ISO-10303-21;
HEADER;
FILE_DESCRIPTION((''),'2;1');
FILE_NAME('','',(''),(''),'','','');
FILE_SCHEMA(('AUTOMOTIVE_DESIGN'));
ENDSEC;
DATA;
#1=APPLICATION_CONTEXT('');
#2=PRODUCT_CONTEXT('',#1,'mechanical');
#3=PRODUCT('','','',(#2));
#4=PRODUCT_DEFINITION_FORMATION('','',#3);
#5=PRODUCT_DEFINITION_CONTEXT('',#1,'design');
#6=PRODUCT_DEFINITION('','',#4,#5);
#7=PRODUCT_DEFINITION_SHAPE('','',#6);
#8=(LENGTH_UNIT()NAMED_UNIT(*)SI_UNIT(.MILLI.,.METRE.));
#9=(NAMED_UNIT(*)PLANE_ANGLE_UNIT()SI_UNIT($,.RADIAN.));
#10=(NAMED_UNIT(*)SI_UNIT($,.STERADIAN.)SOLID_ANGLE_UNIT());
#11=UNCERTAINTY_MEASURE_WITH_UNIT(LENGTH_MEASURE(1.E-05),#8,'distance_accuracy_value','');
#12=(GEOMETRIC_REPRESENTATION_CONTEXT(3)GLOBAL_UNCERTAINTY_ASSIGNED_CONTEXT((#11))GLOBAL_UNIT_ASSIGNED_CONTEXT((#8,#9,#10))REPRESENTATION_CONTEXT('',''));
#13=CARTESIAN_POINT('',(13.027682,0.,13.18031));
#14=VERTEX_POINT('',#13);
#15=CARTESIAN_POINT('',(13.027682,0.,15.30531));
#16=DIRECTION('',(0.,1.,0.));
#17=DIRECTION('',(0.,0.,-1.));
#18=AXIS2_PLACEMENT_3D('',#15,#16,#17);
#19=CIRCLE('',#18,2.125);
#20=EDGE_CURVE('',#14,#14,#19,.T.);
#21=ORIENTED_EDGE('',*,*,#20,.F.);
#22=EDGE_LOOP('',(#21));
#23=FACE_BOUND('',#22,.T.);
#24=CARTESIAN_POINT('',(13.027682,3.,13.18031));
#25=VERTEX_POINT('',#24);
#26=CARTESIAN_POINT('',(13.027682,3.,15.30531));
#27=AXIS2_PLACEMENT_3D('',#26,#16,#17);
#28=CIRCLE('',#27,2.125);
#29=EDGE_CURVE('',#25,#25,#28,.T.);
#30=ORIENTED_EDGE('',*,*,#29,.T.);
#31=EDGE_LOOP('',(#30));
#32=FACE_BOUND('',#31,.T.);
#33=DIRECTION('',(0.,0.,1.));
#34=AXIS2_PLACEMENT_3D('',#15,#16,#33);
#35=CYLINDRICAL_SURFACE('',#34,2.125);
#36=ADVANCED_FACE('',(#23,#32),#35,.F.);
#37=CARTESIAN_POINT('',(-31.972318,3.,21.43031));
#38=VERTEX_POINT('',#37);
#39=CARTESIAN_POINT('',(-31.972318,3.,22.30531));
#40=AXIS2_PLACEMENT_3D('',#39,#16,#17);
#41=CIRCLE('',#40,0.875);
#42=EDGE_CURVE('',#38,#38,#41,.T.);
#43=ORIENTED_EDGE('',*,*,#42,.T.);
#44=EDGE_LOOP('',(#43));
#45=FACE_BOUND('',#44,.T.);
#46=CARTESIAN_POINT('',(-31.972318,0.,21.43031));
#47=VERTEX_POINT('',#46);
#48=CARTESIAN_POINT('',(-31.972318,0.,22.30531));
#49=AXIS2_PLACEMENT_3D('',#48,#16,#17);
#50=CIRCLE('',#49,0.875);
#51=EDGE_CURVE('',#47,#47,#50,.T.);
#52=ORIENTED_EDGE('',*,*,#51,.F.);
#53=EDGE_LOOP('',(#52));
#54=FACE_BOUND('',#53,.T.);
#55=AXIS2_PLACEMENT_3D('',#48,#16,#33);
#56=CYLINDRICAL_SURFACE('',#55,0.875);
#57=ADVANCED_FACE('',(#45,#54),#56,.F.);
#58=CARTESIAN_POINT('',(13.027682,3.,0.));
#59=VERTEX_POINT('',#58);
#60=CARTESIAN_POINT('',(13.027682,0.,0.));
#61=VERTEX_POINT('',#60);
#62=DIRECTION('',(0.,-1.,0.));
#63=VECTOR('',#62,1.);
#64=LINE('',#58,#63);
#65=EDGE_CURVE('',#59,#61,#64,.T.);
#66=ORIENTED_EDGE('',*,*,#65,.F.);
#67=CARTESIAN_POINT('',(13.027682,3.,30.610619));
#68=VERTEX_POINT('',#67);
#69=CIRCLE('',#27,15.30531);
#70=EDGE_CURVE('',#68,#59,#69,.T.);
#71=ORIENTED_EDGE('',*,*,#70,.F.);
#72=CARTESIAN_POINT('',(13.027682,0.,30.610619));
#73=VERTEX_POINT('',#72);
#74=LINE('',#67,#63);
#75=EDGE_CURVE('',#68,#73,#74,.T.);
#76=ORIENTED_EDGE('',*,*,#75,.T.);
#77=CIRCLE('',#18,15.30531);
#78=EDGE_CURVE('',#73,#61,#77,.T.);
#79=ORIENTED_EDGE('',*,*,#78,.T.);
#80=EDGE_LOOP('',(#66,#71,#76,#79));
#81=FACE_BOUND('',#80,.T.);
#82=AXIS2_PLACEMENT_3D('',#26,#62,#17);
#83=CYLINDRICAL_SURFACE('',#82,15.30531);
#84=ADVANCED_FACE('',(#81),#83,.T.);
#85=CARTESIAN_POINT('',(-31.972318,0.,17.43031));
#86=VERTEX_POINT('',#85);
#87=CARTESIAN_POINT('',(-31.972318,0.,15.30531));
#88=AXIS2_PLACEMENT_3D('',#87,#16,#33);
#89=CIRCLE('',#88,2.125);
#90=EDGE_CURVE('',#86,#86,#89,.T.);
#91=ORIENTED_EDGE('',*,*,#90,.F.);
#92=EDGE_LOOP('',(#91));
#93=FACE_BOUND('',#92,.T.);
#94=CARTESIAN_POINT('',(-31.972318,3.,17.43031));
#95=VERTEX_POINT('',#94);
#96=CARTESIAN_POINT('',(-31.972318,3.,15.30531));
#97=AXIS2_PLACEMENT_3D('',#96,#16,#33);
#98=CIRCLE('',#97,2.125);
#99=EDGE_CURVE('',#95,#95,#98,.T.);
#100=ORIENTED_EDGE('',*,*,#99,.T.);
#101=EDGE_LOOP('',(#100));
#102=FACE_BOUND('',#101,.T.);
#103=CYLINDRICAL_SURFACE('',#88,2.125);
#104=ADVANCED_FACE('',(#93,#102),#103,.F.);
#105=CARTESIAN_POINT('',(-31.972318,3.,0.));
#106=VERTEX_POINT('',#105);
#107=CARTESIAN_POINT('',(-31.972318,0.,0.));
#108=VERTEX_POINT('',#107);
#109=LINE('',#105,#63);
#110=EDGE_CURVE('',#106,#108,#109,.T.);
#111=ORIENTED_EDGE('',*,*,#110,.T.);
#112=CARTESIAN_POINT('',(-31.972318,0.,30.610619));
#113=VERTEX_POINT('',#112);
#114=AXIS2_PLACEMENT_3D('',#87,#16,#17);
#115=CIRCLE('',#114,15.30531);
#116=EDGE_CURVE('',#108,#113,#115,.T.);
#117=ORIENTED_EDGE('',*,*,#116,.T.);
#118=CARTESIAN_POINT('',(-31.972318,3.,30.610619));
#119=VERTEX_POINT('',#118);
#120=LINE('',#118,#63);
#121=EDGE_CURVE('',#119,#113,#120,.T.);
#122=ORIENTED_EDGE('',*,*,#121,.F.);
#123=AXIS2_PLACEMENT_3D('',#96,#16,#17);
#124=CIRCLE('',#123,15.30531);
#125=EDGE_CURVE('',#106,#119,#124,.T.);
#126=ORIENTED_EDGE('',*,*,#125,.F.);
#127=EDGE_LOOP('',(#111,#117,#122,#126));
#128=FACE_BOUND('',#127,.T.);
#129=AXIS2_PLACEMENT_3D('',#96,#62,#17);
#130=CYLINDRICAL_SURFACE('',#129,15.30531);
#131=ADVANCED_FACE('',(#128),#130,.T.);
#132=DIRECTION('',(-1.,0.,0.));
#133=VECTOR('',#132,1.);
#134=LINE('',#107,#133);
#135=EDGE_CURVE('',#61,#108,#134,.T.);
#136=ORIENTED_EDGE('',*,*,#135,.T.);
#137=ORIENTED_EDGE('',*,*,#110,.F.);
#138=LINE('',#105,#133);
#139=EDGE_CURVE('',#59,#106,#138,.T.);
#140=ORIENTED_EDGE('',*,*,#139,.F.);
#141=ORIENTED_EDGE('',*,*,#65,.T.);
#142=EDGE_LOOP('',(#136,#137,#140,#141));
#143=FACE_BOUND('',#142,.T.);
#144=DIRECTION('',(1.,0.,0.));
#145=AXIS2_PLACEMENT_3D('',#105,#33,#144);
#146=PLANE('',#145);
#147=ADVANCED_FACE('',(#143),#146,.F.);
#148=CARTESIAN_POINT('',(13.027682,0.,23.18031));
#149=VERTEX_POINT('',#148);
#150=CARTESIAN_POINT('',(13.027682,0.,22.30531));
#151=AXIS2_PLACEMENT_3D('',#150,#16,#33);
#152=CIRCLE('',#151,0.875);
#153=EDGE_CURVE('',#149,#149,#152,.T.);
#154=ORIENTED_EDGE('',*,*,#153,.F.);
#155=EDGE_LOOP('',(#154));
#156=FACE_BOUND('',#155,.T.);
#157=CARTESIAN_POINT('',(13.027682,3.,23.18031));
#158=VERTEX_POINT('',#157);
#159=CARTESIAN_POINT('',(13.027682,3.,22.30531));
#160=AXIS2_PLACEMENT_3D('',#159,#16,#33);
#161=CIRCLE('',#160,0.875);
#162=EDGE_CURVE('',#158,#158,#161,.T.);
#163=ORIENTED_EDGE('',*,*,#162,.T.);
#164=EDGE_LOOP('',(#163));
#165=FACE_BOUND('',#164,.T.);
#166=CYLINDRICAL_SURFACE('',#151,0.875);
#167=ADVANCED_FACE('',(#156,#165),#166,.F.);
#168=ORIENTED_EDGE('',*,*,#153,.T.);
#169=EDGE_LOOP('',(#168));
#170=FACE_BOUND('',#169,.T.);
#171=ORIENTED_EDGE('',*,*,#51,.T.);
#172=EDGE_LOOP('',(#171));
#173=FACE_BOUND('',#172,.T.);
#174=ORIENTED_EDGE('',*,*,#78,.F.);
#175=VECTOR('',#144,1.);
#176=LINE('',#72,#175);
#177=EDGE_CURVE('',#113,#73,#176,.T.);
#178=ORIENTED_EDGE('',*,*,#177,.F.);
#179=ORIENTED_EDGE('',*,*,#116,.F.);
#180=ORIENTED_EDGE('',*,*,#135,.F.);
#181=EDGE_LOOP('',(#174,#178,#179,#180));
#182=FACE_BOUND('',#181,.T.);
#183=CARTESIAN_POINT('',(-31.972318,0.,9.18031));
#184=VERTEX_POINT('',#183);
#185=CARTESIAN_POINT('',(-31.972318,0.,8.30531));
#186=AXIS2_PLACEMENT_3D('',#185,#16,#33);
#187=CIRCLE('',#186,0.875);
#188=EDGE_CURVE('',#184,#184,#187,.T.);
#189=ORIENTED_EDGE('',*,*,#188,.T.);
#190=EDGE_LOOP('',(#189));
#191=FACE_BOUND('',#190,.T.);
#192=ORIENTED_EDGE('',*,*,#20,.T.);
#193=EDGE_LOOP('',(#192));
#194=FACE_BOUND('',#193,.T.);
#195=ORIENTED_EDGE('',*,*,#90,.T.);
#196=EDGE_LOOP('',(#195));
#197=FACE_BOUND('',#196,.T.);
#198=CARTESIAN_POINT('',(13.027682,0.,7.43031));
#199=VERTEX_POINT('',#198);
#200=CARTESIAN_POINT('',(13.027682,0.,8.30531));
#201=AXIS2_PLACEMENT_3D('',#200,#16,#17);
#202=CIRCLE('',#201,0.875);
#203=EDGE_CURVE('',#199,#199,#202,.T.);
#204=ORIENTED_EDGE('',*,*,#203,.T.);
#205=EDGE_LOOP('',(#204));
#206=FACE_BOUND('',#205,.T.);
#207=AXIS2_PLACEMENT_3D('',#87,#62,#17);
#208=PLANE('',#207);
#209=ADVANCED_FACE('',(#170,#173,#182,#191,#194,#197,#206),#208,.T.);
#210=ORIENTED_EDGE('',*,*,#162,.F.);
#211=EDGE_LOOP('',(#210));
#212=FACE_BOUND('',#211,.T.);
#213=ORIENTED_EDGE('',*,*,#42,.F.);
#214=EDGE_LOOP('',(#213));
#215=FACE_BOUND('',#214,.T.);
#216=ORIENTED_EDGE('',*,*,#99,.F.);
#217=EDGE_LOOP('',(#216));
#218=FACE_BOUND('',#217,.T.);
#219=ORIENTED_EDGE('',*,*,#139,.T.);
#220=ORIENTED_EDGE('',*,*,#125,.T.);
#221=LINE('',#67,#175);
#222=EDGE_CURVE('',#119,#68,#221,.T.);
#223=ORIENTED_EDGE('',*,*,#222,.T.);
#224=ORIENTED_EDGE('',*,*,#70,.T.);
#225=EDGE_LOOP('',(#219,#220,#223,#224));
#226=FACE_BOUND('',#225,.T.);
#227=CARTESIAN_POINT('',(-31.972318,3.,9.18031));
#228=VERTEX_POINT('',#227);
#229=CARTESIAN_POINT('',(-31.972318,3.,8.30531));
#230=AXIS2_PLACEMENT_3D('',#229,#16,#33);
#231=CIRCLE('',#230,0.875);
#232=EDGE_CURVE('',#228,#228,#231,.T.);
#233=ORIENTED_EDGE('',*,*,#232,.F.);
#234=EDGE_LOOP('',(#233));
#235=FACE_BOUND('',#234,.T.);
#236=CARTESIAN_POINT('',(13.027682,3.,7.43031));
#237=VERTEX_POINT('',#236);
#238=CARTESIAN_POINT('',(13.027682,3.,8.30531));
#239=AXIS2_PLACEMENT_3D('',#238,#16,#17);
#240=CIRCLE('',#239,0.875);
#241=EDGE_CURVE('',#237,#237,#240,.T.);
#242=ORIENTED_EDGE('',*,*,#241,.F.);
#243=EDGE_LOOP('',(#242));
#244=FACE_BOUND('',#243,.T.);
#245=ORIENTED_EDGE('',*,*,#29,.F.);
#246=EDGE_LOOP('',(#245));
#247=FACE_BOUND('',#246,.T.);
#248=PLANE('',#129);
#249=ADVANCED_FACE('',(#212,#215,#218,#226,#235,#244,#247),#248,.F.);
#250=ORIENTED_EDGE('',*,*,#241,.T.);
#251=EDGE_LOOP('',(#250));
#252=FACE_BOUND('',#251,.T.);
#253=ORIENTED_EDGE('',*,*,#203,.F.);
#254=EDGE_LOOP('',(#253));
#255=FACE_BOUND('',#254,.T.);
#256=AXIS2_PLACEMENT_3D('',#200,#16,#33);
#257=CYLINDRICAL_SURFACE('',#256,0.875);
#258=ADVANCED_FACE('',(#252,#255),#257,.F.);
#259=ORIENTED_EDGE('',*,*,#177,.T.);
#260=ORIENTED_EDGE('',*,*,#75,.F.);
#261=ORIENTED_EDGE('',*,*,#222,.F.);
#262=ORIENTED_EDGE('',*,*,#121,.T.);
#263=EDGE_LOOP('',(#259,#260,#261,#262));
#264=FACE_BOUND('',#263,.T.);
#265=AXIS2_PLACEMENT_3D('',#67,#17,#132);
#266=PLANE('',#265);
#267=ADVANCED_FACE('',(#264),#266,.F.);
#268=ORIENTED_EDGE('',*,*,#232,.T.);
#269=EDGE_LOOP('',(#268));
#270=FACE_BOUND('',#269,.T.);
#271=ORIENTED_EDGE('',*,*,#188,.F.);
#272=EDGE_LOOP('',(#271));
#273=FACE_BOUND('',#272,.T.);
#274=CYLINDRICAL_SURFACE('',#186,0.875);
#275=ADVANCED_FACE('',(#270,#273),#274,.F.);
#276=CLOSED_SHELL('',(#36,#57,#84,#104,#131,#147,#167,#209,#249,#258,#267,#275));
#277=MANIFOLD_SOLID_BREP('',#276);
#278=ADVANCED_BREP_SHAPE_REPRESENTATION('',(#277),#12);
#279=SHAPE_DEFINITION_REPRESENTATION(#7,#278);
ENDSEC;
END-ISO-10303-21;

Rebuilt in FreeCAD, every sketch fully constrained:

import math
import FreeCAD as App
import Part
import Sketcher
Q = App.Units.Quantity

doc = App.newDocument("Part")
body = doc.addObject("PartDesign::Body", "Body")

sketch1 = body.newObject("Sketcher::SketchObject", "Sketch")
sketch1.AttachmentSupport = (doc.getObject("XZ_Plane"), [""])
sketch1.MapMode = "FlatFace"
sketch1.addGeometry([
    Part.LineSegment(App.Vector(13.027682, 0, 0), App.Vector(-31.972318, 0, 0)),
    Part.ArcOfCircle(Part.Circle(App.Vector(-31.972318, 15.30531, 0), App.Vector(0, 0, 1), 15.30531), math.radians(90), math.radians(270)),
    Part.LineSegment(App.Vector(-31.972318, 30.610619, 0), App.Vector(13.027682, 30.610619, 0)),
    Part.ArcOfCircle(Part.Circle(App.Vector(13.027682, 15.30531, 0), App.Vector(0, 0, 1), 15.30531), math.radians(-90), math.radians(90)),
], False)
sketch1.addConstraint([
    Sketcher.Constraint("Tangent", 0, 2, 1, 2),
    Sketcher.Constraint("Tangent", 1, 1, 2, 1),
    Sketcher.Constraint("Tangent", 2, 2, 3, 2),
    Sketcher.Constraint("Tangent", 3, 1, 0, 1),
    Sketcher.Constraint("Horizontal", 0),
    Sketcher.Constraint("Horizontal", 2),
    Sketcher.Constraint("PointOnObject", 0, 2, -1),
    Sketcher.Constraint("DistanceX", 0, 2, 0, 1, Q("45 mm")),
    Sketcher.Constraint("Radius", 1, Q("15.30531 mm")),
    Sketcher.Constraint("DistanceX", 1, 3, -1, 1, Q("31.972318 mm")),
])
pad1 = body.newObject("PartDesign::Pad", "Pad")
pad1.Profile = sketch1
pad1.Length = 3
pad1.Reversed = True

sketch2 = body.newObject("Sketcher::SketchObject", "Sketch001")
sketch2.AttachmentSupport = (doc.getObject("XZ_Plane"), [""])
sketch2.MapMode = "FlatFace"
sketch2.AttachmentOffset = App.Placement(App.Vector(0, 0, -3), App.Rotation())
sketch2.addGeometry([
    Part.Circle(App.Vector(-31.972318, 15.30531, 0), App.Vector(0, 0, 1), 2.125),
    Part.Circle(App.Vector(-31.972318, 8.30531, 0), App.Vector(0, 0, 1), 0.875),
    Part.Circle(App.Vector(-31.972318, 22.30531, 0), App.Vector(0, 0, 1), 0.875),
    Part.Circle(App.Vector(13.027682, 8.30531, 0), App.Vector(0, 0, 1), 0.875),
    Part.Circle(App.Vector(13.027682, 15.30531, 0), App.Vector(0, 0, 1), 2.125),
    Part.Circle(App.Vector(13.027682, 22.30531, 0), App.Vector(0, 0, 1), 0.875),
], False)
sketch2.addConstraint([
    Sketcher.Constraint("Equal", 1, 2),
    Sketcher.Constraint("Equal", 2, 3),
    Sketcher.Constraint("Equal", 0, 4),
    Sketcher.Constraint("Equal", 3, 5),
    Sketcher.Constraint("Horizontal", 1, 3, 3, 3),
    Sketcher.Constraint("Horizontal", 0, 3, 4, 3),
    Sketcher.Constraint("Horizontal", 2, 3, 5, 3),
    Sketcher.Constraint("Vertical", 0, 3, 1, 3),
    Sketcher.Constraint("Vertical", 1, 3, 2, 3),
    Sketcher.Constraint("Vertical", 3, 3, 4, 3),
    Sketcher.Constraint("Vertical", 4, 3, 5, 3),
    Sketcher.Constraint("Diameter", 0, Q("4.25 mm")),
    Sketcher.Constraint("Diameter", 1, Q("1.75 mm")),
    Sketcher.Constraint("DistanceY", 1, 3, 0, 3, Q("7 mm")),
    Sketcher.Constraint("DistanceY", 0, 3, 2, 3, Q("7 mm")),
    Sketcher.Constraint("DistanceX", 1, 3, 3, 3, Q("45 mm")),
    Sketcher.Constraint("DistanceX", 0, 3, -1, 1, Q("31.972318 mm")),
    Sketcher.Constraint("DistanceY", -1, 1, 0, 3, Q("15.30531 mm")),
])
pocket1 = body.newObject("PartDesign::Pocket", "Pocket")
pocket1.Profile = sketch2
pocket1.Type = "ThroughAll"
pocket1.Reversed = True

doc.recompute()
